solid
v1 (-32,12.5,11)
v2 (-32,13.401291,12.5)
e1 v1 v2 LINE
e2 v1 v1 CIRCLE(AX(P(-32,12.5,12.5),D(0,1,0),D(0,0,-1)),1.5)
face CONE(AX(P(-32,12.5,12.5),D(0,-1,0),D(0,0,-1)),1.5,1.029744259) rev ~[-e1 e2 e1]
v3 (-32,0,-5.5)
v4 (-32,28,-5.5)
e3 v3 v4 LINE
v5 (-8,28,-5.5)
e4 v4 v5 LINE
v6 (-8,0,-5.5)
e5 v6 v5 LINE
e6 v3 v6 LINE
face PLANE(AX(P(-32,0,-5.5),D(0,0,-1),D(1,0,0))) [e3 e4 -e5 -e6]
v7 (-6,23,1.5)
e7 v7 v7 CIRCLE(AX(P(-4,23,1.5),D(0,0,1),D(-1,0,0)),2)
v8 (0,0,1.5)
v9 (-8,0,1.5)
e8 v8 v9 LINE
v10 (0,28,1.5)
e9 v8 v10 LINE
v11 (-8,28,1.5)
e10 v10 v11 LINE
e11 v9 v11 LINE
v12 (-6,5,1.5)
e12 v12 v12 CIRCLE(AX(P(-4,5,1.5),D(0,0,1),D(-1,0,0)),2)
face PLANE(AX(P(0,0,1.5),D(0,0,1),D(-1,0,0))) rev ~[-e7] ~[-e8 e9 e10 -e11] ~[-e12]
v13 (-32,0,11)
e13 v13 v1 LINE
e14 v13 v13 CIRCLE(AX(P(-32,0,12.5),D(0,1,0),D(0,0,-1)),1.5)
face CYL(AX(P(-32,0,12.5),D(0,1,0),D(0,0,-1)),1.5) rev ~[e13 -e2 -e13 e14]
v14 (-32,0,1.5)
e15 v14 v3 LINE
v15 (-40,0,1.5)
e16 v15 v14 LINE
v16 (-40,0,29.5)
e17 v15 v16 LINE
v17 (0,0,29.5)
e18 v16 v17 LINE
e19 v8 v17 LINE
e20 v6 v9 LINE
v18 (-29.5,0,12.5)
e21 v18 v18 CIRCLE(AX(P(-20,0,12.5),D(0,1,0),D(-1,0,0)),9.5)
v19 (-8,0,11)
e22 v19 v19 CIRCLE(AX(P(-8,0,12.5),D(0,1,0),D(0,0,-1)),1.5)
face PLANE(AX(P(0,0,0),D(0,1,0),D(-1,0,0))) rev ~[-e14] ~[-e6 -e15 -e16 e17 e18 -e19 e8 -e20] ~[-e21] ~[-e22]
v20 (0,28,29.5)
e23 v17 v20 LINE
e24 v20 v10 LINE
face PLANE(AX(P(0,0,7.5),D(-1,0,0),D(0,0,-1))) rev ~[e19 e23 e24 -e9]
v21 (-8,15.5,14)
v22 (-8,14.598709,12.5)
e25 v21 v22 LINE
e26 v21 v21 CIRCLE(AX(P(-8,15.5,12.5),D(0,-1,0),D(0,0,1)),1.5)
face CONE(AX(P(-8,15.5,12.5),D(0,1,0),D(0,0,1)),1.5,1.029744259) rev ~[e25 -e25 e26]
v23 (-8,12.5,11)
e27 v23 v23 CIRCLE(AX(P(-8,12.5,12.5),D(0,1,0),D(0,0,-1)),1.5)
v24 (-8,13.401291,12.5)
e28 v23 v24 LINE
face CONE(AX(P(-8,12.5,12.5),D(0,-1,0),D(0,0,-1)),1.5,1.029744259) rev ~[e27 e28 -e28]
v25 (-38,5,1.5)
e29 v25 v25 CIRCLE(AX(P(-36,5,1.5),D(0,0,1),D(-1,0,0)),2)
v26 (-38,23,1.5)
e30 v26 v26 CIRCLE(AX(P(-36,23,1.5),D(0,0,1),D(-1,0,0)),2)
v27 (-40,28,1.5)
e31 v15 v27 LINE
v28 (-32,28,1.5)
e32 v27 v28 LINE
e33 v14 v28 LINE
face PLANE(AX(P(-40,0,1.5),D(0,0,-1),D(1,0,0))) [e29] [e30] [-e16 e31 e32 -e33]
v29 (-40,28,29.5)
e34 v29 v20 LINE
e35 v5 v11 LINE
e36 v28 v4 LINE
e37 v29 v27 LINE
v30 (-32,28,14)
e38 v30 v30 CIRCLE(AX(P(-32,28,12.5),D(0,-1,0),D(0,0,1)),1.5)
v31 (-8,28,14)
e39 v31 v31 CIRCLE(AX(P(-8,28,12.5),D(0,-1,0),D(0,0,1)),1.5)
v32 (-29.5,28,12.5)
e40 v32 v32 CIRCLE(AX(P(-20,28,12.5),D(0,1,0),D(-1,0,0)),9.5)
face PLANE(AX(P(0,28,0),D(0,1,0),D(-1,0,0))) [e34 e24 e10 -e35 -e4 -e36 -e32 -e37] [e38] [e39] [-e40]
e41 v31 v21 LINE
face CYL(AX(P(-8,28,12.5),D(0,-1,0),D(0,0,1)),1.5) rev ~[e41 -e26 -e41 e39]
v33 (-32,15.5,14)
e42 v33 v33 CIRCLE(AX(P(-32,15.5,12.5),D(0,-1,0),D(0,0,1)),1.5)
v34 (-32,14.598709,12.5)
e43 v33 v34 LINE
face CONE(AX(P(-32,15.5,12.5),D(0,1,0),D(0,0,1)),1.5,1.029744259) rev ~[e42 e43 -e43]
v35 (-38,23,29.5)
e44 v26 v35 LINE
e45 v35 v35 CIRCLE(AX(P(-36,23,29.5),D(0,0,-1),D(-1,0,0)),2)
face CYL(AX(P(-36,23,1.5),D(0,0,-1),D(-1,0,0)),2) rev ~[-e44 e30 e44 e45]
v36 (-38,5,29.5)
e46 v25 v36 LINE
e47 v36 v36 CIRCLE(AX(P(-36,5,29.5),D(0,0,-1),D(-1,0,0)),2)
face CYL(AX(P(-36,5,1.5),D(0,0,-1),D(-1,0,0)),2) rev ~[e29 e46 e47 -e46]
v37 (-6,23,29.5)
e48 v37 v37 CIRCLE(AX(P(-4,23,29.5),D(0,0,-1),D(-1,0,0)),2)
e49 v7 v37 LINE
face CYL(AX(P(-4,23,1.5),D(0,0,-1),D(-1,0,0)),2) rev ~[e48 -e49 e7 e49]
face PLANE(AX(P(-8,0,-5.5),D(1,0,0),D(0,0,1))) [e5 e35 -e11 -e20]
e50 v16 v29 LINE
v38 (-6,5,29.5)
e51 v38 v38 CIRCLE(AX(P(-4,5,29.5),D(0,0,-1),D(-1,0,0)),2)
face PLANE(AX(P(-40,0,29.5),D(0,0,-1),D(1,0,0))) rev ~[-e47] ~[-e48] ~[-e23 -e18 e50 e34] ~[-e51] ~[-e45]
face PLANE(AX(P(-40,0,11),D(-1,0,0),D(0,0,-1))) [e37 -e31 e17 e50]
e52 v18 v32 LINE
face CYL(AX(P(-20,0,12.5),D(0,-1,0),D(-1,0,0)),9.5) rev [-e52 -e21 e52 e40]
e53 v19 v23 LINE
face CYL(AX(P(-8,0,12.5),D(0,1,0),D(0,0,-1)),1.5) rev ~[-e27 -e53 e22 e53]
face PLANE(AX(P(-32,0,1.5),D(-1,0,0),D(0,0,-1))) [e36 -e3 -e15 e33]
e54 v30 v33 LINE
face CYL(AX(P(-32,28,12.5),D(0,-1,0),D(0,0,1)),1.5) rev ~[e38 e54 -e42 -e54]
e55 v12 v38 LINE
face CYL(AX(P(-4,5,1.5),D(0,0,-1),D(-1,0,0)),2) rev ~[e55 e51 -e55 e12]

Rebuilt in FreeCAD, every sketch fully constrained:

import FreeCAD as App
import Part
import Sketcher

V = App.Vector
Q = App.Units.Quantity


def add_polygon(sketch, points):
    """Adds a closed chain of lines whose ends are joined by coincident constraints."""
    first, n = sketch.GeometryCount, len(points)
    for a, b in zip(points, points[1:] + points[:1]):
        sketch.addGeometry(Part.LineSegment(App.Vector(*a, 0), App.Vector(*b, 0)), False)
    for i in range(n):
        sketch.addConstraint(Sketcher.Constraint("Coincident", first + i, 2, first + (i + 1) % n, 1))

doc = App.newDocument("Part")
body = doc.addObject("PartDesign::Body", "Body")

# Sketch on XZ plane
sketch1 = body.newObject("Sketcher::SketchObject", "Sketch")
sketch1.AttachmentSupport = (doc.getObject("XZ_Plane"), [""])
sketch1.MapMode = "FlatFace"
add_polygon(sketch1, [(-40, 2), (-40, 30), (0, 30), (0, 2), (-8, 2), (-8, -6), (-32, -6), (-32, 2)])  # lines 0-7
sketch1.addGeometry(Part.Circle(V(-20, 12, 0), V(0, 0, 1), 10), False)  # 8
sketch1.addConstraint(Sketcher.Constraint("Vertical", 0))
sketch1.addConstraint(Sketcher.Constraint("Horizontal", 1))
sketch1.addConstraint(Sketcher.Constraint("Vertical", 2))
sketch1.addConstraint(Sketcher.Constraint("Horizontal", 3))
sketch1.addConstraint(Sketcher.Constraint("Vertical", 4))
sketch1.addConstraint(Sketcher.Constraint("Horizontal", 5))
sketch1.addConstraint(Sketcher.Constraint("Vertical", 6))
sketch1.addConstraint(Sketcher.Constraint("Horizontal", 7))
sketch1.addConstraint(Sketcher.Constraint("PointOnObject", 1, 2, -2))
sketch1.addConstraint(Sketcher.Constraint("Horizontal", 3, 2, 6, 2))
sketch1.addConstraint(Sketcher.Constraint("Equal", 3, 7))
sketch1.addConstraint(Sketcher.Constraint("Diameter", 8, Q("19 mm")))
sketch1.addConstraint(Sketcher.Constraint("DistanceX", 1, 1, 1, 2, Q("40 mm")))
sketch1.addConstraint(Sketcher.Constraint("DistanceX", 3, 2, 3, 1, Q("8 mm")))
sketch1.addConstraint(Sketcher.Constraint("DistanceY", 0, 1, 0, 2, Q("28 mm")))
sketch1.addConstraint(Sketcher.Constraint("DistanceY", 8, 3, 0, 2, Q("17 mm")))
sketch1.addConstraint(Sketcher.Constraint("DistanceY", 4, 2, 1, 2, Q("35 mm")))
sketch1.addConstraint(Sketcher.Constraint("DistanceX", 8, 3, -1, 1, Q("20 mm")))
sketch1.addConstraint(Sketcher.Constraint("DistanceY", -1, 1, 8, 3, Q("12.5 mm")))
pad1 = body.newObject("PartDesign::Pad", "Pad")
pad1.Profile = sketch1
pad1.Length = 28
pad1.Reversed = True

# Sketch on XY plane
sketch2 = body.newObject("Sketcher::SketchObject", "Sketch001")
sketch2.AttachmentSupport = (doc.getObject("XY_Plane"), [""])
sketch2.MapMode = "FlatFace"
sketch2.AttachmentOffset = App.Placement(V(0, 0, 1.5), App.Rotation())
sketch2.addGeometry(Part.Circle(V(-4, 5, 0), V(0, 0, 1), 2), False)
sketch2.addGeometry(Part.Circle(V(-4, 23, 0), V(0, 0, 1), 2), False)
sketch2.addGeometry(Part.Circle(V(-36, 5, 0), V(0, 0, 1), 2), False)
sketch2.addGeometry(Part.Circle(V(-36, 23, 0), V(0, 0, 1), 2), False)
sketch2.addConstraint(Sketcher.Constraint("Equal", 0, 1))
sketch2.addConstraint(Sketcher.Constraint("Equal", 1, 2))
sketch2.addConstraint(Sketcher.Constraint("Equal", 2, 3))
sketch2.addConstraint(Sketcher.Constraint("Horizontal", 0, 3, 2, 3))
sketch2.addConstraint(Sketcher.Constraint("Horizontal", 1, 3, 3, 3))
sketch2.addConstraint(Sketcher.Constraint("Vertical", 0, 3, 1, 3))
sketch2.addConstraint(Sketcher.Constraint("Vertical", 2, 3, 3, 3))
sketch2.addConstraint(Sketcher.Constraint("Diameter", 0, Q("4 mm")))
sketch2.addConstraint(Sketcher.Constraint("DistanceX", 0, 3, -1, 1, Q("4 mm")))
sketch2.addConstraint(Sketcher.Constraint("DistanceY", -1, 1, 0, 3, Q("5 mm")))
sketch2.addConstraint(Sketcher.Constraint("DistanceY", -1, 1, 1, 3, Q("23 mm")))
sketch2.addConstraint(Sketcher.Constraint("DistanceX", 2, 3, -1, 1, Q("36 mm")))
pocket1 = body.newObject("PartDesign::Pocket", "Pocket")
pocket1.Profile = sketch2
pocket1.Length = 28
pocket1.Reversed = True

# Sketch on XZ plane
sketch3 = body.newObject("Sketcher::SketchObject", "Sketch002")
sketch3.AttachmentSupport = (doc.getObject("XZ_Plane"), [""])
sketch3.MapMode = "FlatFace"
sketch3.addGeometry(Part.Circle(V(-32, 12.5, 0), V(0, 0, 1), 1.5), False)
sketch3.addGeometry(Part.Circle(V(-8, 12.5, 0), V(0, 0, 1), 1.5), False)
sketch3.addConstraint(Sketcher.Constraint("Equal", 0, 1))
sketch3.addConstraint(Sketcher.Constraint("Horizontal", 0, 3, 1, 3))
sketch3.addConstraint(Sketcher.Constraint("Diameter", 0, Q("3 mm")))
sketch3.addConstraint(Sketcher.Constraint("DistanceX", 0, 3, -1, 1, Q("32 mm")))
sketch3.addConstraint(Sketcher.Constraint("DistanceX", 1, 3, -1, 1, Q("8 mm")))
sketch3.addConstraint(Sketcher.Constraint("DistanceY", -1, 1, 0, 3, Q("12.5 mm")))
doc.recompute()
hole = body.newObject("PartDesign::Hole", "Hole")
hole.Profile = sketch3
hole.ThreadType = "None"
hole.Diameter = 3
hole.DepthType = "Dimension"
hole.Depth = 12.5
hole.DrillPoint = "Angled"
hole.DrillPointAngle = 118

# Sketch on XZ plane
sketch4 = body.newObject("Sketcher::SketchObject", "Sketch003")
sketch4.AttachmentSupport = (doc.getObject("XZ_Plane"), [""])
sketch4.MapMode = "FlatFace"
sketch4.AttachmentOffset = App.Placement(V(0, 0, -28), App.Rotation())
sketch4.addGeometry(Part.Circle(V(-8, 12.5, 0), V(0, 0, 1), 1.5), False)
sketch4.addGeometry(Part.Circle(V(-32, 12.5, 0), V(0, 0, 1), 1.5), False)
sketch4.addConstraint(Sketcher.Constraint("Equal", 0, 1))
sketch4.addConstraint(Sketcher.Constraint("Horizontal", 0, 3, 1, 3))
sketch4.addConstraint(Sketcher.Constraint("Diameter", 0, Q("3 mm")))
sketch4.addConstraint(Sketcher.Constraint("DistanceX", 0, 3, -1, 1, Q("8 mm")))
sketch4.addConstraint(Sketcher.Constraint("DistanceX", 1, 3, -1, 1, Q("32 mm")))
sketch4.addConstraint(Sketcher.Constraint("DistanceY", -1, 1, 0, 3, Q("12.5 mm")))
doc.recompute()
hole2 = body.newObject("PartDesign::Hole", "Hole001")
hole2.Profile = sketch4
hole2.ThreadType = "None"
hole2.Diameter = 3
hole2.DepthType = "Dimension"
hole2.Depth = 12.5
hole2.DrillPoint = "Angled"
hole2.DrillPointAngle = 118
hole2.Reversed = True

doc.recompute()
